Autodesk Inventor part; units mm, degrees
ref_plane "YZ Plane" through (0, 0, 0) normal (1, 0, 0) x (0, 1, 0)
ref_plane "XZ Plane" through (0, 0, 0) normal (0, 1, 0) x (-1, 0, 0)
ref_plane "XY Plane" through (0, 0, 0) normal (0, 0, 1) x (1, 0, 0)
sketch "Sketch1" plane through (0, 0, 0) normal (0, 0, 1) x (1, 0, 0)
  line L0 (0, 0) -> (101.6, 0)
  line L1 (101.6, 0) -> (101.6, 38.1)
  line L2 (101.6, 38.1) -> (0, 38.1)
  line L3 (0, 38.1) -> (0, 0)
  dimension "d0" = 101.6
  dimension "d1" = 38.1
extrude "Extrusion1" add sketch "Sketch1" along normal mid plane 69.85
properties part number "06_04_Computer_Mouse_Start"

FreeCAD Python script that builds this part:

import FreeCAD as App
import Part
import Sketcher
Q = App.Units.Quantity


def add_polygon(sketch, points):
    """Adds a closed chain of lines whose ends are joined by coincident constraints."""
    first, n = sketch.GeometryCount, len(points)
    for a, b in zip(points, points[1:] + points[:1]):
        sketch.addGeometry(Part.LineSegment(App.Vector(*a, 0), App.Vector(*b, 0)), False)
    for i in range(n):
        sketch.addConstraint(Sketcher.Constraint("Coincident", first + i, 2, first + (i + 1) % n, 1))

doc = App.newDocument("Part")
body = doc.addObject("PartDesign::Body", "Body")

# Sketch on XY plane
sketch1 = body.newObject("Sketcher::SketchObject", "Sketch")
sketch1.AttachmentSupport = (doc.getObject("XY_Plane"), [""])
sketch1.MapMode = "FlatFace"
add_polygon(sketch1, [(0, 38.1), (0, 0), (101.6, 0), (101.6, 38.1)])  # lines 0-3
sketch1.addConstraint(Sketcher.Constraint("Vertical", 0))
sketch1.addConstraint(Sketcher.Constraint("Horizontal", 1))
sketch1.addConstraint(Sketcher.Constraint("Vertical", 2))
sketch1.addConstraint(Sketcher.Constraint("Horizontal", 3))
sketch1.addConstraint(Sketcher.Constraint("Coincident", 0, 2, -1, 1))
sketch1.addConstraint(Sketcher.Constraint("DistanceX", 1, 1, 1, 2, Q("4 in")))
sketch1.addConstraint(Sketcher.Constraint("DistanceY", 0, 2, 0, 1, Q("1.5 in")))
pad1 = body.newObject("PartDesign::Pad", "Pad")
pad1.Profile = sketch1
pad1.Length = Q("2.75 in")
pad1.Midplane = True

doc.recompute()
